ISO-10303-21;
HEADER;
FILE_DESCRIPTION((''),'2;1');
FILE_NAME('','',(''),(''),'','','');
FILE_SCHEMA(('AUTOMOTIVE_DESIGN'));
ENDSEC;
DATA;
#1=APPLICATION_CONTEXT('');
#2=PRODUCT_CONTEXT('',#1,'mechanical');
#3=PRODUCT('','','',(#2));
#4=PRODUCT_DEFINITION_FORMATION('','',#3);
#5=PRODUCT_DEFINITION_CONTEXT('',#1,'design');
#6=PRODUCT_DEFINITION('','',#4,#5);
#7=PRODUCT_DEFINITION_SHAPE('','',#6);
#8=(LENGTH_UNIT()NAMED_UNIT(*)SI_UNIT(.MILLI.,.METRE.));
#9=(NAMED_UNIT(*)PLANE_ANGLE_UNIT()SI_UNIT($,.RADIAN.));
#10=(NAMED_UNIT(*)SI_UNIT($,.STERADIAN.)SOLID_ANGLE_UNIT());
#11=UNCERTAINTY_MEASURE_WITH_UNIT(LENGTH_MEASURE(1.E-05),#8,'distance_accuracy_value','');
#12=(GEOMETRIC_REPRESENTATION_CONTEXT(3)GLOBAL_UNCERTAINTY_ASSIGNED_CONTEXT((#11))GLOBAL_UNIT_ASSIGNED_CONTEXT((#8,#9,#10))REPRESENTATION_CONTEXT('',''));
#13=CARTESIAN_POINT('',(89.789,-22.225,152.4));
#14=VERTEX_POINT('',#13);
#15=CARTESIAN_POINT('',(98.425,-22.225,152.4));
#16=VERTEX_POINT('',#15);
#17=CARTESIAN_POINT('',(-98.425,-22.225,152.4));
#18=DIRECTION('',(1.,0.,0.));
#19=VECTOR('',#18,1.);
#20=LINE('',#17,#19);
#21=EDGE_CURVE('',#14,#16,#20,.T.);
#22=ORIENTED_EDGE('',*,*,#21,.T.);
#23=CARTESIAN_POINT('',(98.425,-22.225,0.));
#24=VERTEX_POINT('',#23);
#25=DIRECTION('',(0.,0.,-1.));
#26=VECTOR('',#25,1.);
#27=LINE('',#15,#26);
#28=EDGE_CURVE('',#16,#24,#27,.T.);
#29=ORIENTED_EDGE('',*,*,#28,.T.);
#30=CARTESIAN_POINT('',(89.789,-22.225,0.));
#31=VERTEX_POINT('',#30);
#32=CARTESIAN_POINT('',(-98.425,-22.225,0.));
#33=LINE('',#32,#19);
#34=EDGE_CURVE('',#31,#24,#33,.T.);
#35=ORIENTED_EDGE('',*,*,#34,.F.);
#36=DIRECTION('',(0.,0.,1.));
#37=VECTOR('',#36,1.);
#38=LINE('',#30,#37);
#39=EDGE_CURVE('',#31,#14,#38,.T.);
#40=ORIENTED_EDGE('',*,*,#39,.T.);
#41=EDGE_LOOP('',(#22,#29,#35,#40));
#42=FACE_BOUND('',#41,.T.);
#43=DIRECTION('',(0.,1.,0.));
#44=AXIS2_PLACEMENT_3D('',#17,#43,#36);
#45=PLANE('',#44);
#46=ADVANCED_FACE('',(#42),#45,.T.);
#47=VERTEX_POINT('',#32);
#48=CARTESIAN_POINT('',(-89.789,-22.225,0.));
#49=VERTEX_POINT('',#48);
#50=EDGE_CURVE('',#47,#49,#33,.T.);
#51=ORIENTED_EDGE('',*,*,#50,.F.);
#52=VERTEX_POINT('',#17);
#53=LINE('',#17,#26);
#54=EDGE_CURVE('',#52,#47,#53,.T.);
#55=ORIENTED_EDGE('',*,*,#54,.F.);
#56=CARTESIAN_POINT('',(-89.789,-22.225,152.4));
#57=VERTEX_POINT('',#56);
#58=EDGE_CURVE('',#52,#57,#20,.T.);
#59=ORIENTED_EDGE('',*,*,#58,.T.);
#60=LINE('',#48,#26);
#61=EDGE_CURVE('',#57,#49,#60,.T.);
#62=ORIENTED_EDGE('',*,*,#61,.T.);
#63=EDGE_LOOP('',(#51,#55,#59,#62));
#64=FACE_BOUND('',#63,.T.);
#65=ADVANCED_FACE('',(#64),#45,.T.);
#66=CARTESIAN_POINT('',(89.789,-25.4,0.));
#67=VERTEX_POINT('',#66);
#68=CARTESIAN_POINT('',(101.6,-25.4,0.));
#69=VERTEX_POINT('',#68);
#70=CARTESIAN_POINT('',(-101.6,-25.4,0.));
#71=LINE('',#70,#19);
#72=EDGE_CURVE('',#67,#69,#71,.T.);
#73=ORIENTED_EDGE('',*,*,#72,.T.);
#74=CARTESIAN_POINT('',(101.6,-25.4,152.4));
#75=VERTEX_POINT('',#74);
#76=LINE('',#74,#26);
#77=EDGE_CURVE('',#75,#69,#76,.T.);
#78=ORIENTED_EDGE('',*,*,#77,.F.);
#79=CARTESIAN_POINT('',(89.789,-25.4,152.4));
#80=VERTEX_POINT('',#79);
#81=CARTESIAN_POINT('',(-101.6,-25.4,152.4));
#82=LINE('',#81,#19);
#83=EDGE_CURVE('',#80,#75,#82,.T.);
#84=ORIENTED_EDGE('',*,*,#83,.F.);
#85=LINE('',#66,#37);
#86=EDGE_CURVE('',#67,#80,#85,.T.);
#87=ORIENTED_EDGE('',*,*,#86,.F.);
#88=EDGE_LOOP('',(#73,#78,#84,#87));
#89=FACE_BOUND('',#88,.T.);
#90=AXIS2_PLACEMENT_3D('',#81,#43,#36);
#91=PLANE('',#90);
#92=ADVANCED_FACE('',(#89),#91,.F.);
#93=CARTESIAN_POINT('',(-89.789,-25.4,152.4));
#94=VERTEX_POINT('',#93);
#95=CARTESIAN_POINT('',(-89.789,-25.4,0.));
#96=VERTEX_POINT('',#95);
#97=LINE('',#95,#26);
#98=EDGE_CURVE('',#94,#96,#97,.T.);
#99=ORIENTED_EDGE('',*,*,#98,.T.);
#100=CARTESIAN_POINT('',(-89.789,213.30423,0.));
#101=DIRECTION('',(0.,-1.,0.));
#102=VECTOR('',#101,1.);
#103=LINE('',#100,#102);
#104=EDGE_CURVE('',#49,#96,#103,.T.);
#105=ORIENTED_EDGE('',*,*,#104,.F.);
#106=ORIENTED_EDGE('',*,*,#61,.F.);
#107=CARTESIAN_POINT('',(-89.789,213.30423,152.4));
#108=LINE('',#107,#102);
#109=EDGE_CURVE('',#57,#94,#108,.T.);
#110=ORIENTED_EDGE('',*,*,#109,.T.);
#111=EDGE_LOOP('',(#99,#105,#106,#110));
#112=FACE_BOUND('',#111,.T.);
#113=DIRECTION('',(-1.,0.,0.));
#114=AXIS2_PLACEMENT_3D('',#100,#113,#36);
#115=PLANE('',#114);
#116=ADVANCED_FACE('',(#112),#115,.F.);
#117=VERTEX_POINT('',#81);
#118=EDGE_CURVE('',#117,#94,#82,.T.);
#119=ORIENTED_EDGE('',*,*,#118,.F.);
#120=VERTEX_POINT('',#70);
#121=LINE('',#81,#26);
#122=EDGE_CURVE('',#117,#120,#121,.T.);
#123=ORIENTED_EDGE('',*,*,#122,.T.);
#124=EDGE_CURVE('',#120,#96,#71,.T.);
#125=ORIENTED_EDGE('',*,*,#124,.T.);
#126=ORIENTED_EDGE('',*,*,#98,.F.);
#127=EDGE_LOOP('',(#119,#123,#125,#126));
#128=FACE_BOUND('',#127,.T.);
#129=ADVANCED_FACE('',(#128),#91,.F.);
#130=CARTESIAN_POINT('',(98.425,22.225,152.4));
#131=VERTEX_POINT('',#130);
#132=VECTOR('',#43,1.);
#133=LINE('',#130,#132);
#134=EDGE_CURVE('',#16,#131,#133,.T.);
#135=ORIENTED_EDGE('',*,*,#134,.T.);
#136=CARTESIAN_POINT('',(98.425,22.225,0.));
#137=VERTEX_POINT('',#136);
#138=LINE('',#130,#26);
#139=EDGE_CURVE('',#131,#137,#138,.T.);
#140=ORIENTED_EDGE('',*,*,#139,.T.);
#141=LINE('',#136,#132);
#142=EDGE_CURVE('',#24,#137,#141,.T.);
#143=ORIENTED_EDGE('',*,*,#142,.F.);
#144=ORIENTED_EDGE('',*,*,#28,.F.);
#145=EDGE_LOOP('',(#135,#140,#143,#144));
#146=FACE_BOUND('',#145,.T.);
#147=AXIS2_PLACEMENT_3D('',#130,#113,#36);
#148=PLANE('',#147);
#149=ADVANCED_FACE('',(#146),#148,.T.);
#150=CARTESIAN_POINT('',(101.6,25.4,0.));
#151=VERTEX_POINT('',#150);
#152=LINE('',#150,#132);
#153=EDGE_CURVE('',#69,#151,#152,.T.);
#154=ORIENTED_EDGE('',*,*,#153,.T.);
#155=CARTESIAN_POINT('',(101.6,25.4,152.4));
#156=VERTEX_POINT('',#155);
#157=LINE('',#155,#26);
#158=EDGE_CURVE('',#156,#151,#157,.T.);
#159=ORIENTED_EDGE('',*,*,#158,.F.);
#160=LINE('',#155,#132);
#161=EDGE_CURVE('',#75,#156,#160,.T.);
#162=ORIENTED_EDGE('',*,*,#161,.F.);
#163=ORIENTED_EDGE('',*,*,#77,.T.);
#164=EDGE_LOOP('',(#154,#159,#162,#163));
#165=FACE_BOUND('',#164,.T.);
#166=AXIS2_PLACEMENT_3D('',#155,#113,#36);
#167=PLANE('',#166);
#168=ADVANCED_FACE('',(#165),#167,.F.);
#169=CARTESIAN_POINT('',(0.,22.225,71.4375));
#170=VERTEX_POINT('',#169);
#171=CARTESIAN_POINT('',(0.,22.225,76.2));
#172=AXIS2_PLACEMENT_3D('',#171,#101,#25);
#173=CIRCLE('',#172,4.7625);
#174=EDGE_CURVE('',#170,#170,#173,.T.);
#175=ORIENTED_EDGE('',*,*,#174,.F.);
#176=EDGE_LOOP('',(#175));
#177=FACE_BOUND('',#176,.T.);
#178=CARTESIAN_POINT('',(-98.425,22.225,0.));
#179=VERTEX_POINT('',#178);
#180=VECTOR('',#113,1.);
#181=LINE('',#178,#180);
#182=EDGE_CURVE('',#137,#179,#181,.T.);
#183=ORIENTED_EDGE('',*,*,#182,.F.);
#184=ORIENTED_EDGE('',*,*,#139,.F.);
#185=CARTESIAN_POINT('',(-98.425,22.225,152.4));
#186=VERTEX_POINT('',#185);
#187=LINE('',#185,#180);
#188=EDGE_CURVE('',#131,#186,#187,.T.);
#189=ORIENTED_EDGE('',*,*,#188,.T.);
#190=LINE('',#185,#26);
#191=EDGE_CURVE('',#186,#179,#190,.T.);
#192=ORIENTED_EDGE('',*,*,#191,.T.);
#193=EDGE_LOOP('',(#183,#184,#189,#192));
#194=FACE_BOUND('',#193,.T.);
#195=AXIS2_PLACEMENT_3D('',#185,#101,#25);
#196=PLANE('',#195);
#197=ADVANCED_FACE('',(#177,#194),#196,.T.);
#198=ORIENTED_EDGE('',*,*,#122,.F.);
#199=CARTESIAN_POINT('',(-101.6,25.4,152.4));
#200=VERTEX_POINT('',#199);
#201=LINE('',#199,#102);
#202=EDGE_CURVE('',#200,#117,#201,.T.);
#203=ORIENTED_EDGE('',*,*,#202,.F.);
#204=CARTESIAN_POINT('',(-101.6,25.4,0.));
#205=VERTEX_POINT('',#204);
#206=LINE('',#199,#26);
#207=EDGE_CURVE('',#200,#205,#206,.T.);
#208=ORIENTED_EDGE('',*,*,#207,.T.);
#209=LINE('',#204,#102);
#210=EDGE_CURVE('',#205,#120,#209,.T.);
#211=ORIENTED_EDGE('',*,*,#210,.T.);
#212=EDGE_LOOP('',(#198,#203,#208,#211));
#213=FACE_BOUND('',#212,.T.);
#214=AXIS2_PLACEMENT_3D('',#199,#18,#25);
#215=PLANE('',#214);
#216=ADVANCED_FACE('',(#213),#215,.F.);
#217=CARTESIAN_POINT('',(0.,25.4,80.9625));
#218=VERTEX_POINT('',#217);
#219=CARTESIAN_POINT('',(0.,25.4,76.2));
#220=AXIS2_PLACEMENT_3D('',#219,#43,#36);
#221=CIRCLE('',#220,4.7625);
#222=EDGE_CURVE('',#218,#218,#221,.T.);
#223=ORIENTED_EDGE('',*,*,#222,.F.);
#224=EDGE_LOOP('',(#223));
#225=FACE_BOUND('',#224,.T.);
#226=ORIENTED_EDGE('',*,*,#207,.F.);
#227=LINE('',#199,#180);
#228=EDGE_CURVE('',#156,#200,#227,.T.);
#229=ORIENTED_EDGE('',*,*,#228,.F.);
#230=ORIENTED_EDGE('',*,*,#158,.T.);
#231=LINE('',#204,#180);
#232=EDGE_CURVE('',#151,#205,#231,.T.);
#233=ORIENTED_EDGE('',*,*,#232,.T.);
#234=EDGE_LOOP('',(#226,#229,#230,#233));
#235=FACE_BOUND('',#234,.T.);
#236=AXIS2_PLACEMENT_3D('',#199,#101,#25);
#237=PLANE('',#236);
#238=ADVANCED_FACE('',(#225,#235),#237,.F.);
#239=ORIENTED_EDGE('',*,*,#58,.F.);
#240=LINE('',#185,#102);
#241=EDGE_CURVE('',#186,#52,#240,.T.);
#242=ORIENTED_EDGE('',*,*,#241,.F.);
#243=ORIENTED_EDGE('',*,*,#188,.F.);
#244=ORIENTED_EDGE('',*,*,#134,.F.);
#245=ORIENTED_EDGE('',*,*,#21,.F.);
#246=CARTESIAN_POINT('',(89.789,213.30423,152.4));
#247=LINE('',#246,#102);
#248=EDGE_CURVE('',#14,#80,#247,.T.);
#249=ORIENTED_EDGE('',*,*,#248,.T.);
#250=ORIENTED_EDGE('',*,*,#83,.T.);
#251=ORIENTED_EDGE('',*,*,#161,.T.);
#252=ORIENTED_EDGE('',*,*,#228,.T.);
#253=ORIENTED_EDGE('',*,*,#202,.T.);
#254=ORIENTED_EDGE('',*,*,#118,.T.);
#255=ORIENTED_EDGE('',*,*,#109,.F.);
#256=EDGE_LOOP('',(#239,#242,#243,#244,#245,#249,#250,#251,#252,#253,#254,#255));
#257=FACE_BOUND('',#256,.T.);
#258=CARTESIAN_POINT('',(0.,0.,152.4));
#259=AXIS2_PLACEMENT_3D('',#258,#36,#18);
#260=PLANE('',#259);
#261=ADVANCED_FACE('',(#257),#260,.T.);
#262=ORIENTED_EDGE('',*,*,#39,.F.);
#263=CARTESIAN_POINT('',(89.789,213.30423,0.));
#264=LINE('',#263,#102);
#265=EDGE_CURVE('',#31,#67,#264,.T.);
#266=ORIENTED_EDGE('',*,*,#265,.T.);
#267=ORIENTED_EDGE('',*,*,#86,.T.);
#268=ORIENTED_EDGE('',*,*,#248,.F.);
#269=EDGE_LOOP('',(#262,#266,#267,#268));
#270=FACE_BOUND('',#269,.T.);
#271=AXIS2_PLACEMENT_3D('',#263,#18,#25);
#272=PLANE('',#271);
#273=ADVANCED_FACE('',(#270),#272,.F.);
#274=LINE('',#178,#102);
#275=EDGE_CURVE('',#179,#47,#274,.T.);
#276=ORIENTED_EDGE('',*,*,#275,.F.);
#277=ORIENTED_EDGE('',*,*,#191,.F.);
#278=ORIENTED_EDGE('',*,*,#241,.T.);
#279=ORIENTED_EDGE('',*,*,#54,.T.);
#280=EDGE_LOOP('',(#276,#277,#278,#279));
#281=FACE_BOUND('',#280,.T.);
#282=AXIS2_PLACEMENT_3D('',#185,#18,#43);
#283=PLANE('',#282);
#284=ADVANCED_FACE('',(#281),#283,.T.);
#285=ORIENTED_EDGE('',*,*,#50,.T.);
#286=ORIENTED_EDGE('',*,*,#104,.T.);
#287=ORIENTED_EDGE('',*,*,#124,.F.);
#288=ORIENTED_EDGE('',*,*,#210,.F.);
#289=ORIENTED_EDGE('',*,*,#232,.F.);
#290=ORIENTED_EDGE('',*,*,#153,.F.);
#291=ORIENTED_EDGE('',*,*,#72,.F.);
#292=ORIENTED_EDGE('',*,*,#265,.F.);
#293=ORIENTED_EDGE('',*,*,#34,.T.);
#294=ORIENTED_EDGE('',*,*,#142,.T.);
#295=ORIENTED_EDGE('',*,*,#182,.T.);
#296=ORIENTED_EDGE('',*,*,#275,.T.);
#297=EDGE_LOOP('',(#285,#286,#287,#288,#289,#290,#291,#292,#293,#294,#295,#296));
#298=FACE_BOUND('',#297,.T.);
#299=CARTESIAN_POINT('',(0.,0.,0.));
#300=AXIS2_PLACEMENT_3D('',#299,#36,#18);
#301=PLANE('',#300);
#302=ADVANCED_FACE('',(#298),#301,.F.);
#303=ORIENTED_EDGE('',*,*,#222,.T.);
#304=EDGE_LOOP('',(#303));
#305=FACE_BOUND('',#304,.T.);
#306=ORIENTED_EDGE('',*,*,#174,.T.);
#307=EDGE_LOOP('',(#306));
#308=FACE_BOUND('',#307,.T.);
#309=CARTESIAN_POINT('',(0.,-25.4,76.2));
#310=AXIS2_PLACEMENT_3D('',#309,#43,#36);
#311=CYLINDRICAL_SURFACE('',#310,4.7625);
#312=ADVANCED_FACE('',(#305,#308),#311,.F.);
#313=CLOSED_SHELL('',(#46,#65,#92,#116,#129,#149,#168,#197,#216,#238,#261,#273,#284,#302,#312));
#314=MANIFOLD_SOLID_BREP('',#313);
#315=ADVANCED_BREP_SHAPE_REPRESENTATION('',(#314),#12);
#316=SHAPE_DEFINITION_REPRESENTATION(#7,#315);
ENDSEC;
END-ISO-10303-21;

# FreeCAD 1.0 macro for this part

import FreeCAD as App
import Part
import Sketcher
from FreeCAD import Vector
Q = App.Units.Quantity

doc = App.newDocument("Part")
body = doc.addObject("PartDesign::Body", "Body")

sketch1 = doc.addObject("Sketcher::SketchObject", "Sketch")
body.addObject(sketch1)
sketch1.AttachmentSupport = (doc.XY_Plane, [""])
sketch1.MapMode = "FlatFace"
sketch1.addGeometry(Part.LineSegment(Vector(-102, 25, 0), Vector(-102, -25, 0)), False)
sketch1.addGeometry(Part.LineSegment(Vector(-102, -25, 0), Vector(102, -25, 0)), False)
sketch1.addGeometry(Part.LineSegment(Vector(102, -25, 0), Vector(102, 25, 0)), False)
sketch1.addGeometry(Part.LineSegment(Vector(102, 25, 0), Vector(-102, 25, 0)), False)
sketch1.addGeometry(Part.LineSegment(Vector(98, -22, 0), Vector(-98, -22, 0)), False)
sketch1.addGeometry(Part.LineSegment(Vector(-98, -22, 0), Vector(-98, 22, 0)), False)
sketch1.addGeometry(Part.LineSegment(Vector(-98, 22, 0), Vector(98, 22, 0)), False)
sketch1.addGeometry(Part.LineSegment(Vector(98, 22, 0), Vector(98, -22, 0)), False)
sketch1.addConstraint(Sketcher.Constraint("Coincident", 0, 2, 1, 1))
sketch1.addConstraint(Sketcher.Constraint("Coincident", 1, 2, 2, 1))
sketch1.addConstraint(Sketcher.Constraint("Coincident", 2, 2, 3, 1))
sketch1.addConstraint(Sketcher.Constraint("Coincident", 3, 2, 0, 1))
sketch1.addConstraint(Sketcher.Constraint("Coincident", 4, 2, 5, 1))
sketch1.addConstraint(Sketcher.Constraint("Coincident", 5, 2, 6, 1))
sketch1.addConstraint(Sketcher.Constraint("Coincident", 6, 2, 7, 1))
sketch1.addConstraint(Sketcher.Constraint("Coincident", 7, 2, 4, 1))
sketch1.addConstraint(Sketcher.Constraint("Vertical", 0))
sketch1.addConstraint(Sketcher.Constraint("Horizontal", 1))
sketch1.addConstraint(Sketcher.Constraint("Vertical", 2))
sketch1.addConstraint(Sketcher.Constraint("Horizontal", 3))
sketch1.addConstraint(Sketcher.Constraint("Horizontal", 4))
sketch1.addConstraint(Sketcher.Constraint("Vertical", 5))
sketch1.addConstraint(Sketcher.Constraint("Horizontal", 6))
sketch1.addConstraint(Sketcher.Constraint("Vertical", 7))
sketch1.addConstraint(Sketcher.Constraint("Symmetric", 0, 2, 2, 2, -1, 1))
sketch1.addConstraint(Sketcher.Constraint("Symmetric", 4, 2, 6, 2, -1, 1))
sketch1.addConstraint(Sketcher.Constraint("DistanceX", 1, 1, 1, 2, Q("8 in")))
sketch1.addConstraint(Sketcher.Constraint("DistanceY", 0, 2, 0, 1, Q("2 in")))
sketch1.addConstraint(Sketcher.Constraint("DistanceX", 4, 2, 4, 1, Q("7.75 in")))
sketch1.addConstraint(Sketcher.Constraint("DistanceY", 5, 1, 5, 2, Q("1.75 in")))
pad1 = doc.addObject("PartDesign::Pad", "Pad")
body.addObject(pad1)
pad1.Profile = sketch1
pad1.Length = Q("6 in")

sketch2 = doc.addObject("Sketcher::SketchObject", "Sketch001")
body.addObject(sketch2)
sketch2.AttachmentSupport = (doc.XZ_Plane, [""])
sketch2.MapMode = "FlatFace"
sketch2.AttachmentOffset = App.Placement(Vector(0, 0, 1 * 25.4), App.Rotation())
sketch2.addGeometry(Part.LineSegment(Vector(-90, 152, 0), Vector(-90, 0, 0)), False)
sketch2.addGeometry(Part.LineSegment(Vector(-90, 0, 0), Vector(90, 0, 0)), False)
sketch2.addGeometry(Part.LineSegment(Vector(90, 0, 0), Vector(90, 152, 0)), False)
sketch2.addGeometry(Part.LineSegment(Vector(90, 152, 0), Vector(-90, 152, 0)), False)
sketch2.addConstraint(Sketcher.Constraint("Coincident", 0, 2, 1, 1))
sketch2.addConstraint(Sketcher.Constraint("Coincident", 1, 2, 2, 1))
sketch2.addConstraint(Sketcher.Constraint("Coincident", 2, 2, 3, 1))
sketch2.addConstraint(Sketcher.Constraint("Coincident", 3, 2, 0, 1))
sketch2.addConstraint(Sketcher.Constraint("Vertical", 0))
sketch2.addConstraint(Sketcher.Constraint("Horizontal", 1))
sketch2.addConstraint(Sketcher.Constraint("Vertical", 2))
sketch2.addConstraint(Sketcher.Constraint("Horizontal", 3))
sketch2.addConstraint(Sketcher.Constraint("Symmetric", 0, 2, 1, 2, -1, 1))
sketch2.addConstraint(Sketcher.Constraint("DistanceY", 0, 2, 0, 1, Q("6 in")))
sketch2.addConstraint(Sketcher.Constraint("DistanceX", 1, 1, 1, 2, Q("7.07 in")))
pocket1 = doc.addObject("PartDesign::Pocket", "Pocket")
body.addObject(pocket1)
pocket1.Profile = sketch2
pocket1.Length = Q("0.125 in")

sketch3 = doc.addObject("Sketcher::SketchObject", "Sketch002")
body.addObject(sketch3)
sketch3.AttachmentSupport = (doc.XZ_Plane, [""])
sketch3.MapMode = "FlatFace"
sketch3.AttachmentOffset = App.Placement(Vector(0, 0, -1 * 25.4), App.Rotation())
sketch3.addGeometry(Part.Circle(Vector(0, 76.2, 0), Vector(0, 0, 1), 4.8), False)
sketch3.addConstraint(Sketcher.Constraint("PointOnObject", 0, 3, -2))
sketch3.addConstraint(Sketcher.Constraint("Diameter", 0, Q("0.375 in")))
sketch3.addConstraint(Sketcher.Constraint("DistanceY", -1, 1, 0, 3, Q("3 in")))
pocket2 = doc.addObject("PartDesign::Pocket", "Pocket001")
body.addObject(pocket2)
pocket2.Profile = sketch3
pocket2.Type = "ThroughAll"
pocket2.Reversed = True

doc.recompute()
